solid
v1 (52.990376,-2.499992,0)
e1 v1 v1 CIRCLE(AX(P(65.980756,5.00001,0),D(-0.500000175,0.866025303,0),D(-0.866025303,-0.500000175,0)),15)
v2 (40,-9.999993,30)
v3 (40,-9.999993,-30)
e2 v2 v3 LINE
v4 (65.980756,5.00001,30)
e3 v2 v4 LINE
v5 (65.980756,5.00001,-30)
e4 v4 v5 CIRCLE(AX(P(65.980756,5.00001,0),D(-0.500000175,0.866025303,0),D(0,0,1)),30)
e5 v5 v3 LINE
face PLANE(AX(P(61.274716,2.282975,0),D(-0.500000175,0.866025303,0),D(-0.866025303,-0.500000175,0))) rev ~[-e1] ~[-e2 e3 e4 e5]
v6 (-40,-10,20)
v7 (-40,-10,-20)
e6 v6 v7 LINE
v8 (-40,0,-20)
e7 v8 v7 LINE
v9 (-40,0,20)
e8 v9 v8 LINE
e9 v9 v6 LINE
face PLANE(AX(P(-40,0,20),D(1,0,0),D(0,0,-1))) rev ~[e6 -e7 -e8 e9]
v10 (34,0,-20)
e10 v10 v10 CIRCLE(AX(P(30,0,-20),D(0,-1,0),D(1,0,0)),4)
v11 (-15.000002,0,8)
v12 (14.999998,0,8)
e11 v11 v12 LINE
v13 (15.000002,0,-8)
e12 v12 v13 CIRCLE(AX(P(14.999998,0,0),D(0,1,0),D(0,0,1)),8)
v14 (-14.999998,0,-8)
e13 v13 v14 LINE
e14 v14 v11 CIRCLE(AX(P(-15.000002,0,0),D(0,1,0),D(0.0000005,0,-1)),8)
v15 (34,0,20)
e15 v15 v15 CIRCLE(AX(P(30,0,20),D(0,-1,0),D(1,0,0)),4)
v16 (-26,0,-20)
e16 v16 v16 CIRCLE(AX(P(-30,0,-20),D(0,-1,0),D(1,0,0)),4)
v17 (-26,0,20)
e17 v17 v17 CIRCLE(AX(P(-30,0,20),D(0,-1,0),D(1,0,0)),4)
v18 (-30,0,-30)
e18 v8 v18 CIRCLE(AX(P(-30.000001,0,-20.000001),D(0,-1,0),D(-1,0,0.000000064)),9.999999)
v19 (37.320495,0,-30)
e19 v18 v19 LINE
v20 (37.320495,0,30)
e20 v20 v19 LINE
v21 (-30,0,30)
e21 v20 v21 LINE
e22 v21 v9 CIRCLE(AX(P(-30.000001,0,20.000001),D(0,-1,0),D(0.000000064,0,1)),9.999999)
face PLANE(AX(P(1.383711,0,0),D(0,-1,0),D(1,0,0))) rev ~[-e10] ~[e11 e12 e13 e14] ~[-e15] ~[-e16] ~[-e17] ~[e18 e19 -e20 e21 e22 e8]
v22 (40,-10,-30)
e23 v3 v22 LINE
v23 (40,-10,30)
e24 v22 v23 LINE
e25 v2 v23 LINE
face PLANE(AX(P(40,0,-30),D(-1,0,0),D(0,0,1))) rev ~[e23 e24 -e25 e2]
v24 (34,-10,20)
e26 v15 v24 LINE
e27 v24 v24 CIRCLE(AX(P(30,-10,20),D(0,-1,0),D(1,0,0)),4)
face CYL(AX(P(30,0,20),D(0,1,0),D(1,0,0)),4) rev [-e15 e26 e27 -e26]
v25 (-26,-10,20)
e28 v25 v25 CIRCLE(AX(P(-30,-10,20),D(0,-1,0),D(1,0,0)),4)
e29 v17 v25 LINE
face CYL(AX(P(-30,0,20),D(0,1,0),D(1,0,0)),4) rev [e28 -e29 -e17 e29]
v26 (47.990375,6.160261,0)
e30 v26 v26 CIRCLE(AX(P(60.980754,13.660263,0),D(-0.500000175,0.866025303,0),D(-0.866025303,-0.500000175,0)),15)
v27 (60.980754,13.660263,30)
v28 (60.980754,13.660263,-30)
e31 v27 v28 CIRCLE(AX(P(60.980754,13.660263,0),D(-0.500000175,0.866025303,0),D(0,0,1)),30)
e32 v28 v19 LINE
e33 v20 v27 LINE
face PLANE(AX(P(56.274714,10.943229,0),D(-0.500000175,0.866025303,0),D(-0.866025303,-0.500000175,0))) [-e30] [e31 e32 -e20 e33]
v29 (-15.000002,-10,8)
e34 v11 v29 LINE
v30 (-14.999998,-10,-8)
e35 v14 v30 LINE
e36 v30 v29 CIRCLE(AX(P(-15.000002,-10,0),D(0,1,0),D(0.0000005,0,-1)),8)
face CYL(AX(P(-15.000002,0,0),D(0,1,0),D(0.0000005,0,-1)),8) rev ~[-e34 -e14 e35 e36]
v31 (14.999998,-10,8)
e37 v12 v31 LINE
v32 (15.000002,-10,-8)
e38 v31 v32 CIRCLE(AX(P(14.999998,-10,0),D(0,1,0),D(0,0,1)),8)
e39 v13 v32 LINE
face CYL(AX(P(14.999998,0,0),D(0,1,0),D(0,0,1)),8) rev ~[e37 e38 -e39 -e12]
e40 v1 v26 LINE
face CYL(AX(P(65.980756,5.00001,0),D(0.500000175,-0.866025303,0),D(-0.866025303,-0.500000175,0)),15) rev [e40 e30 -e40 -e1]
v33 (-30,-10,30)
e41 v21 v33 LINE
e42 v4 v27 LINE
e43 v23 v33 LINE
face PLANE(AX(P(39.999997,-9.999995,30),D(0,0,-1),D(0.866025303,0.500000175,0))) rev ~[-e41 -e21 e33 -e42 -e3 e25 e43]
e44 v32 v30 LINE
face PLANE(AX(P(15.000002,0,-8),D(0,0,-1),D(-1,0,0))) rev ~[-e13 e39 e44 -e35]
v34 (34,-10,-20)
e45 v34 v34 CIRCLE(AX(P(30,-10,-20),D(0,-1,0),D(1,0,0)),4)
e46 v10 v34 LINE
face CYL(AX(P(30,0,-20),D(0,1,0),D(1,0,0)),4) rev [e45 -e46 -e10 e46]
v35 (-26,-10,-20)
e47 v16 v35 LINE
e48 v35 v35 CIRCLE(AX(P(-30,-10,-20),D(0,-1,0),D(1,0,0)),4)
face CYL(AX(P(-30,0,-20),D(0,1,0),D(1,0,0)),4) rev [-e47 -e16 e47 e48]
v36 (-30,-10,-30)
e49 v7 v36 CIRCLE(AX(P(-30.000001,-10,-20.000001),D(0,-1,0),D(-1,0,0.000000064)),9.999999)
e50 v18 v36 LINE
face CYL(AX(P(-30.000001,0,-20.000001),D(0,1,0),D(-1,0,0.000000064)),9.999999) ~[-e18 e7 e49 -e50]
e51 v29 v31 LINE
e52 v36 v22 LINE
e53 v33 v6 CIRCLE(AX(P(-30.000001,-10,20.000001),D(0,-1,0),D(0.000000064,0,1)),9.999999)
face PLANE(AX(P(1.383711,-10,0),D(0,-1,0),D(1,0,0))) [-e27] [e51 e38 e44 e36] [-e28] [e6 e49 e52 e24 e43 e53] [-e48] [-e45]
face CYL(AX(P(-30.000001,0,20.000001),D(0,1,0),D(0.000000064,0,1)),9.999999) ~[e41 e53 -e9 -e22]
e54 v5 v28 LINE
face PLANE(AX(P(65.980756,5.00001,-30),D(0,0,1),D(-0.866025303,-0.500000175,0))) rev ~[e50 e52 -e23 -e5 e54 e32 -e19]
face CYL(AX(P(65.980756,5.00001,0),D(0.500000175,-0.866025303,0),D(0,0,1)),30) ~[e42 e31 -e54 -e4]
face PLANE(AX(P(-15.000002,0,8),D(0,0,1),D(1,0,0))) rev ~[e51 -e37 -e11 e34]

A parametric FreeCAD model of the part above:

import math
import FreeCAD as App
import Part
import Sketcher
from FreeCAD import Vector
Q = App.Units.Quantity

doc = App.newDocument("Part")
body = doc.addObject("PartDesign::Body", "Body")

sketch1 = body.newObject("Sketcher::SketchObject", "Sketch")
sketch1.AttachmentSupport = (doc.getObject("XZ_Plane"), [""])
sketch1.MapMode = "FlatFace"
sketch1.addGeometry(Part.LineSegment(Vector(40, 30, 0), Vector(-30, 30, 0)), False)
sketch1.addGeometry(Part.ArcOfCircle(Part.Circle(Vector(-30, 20, 0), Vector(0, 0, 1), 10), math.radians(90), math.radians(180)), False)
sketch1.addGeometry(Part.LineSegment(Vector(-40, 20, 0), Vector(-40, -20, 0)), False)
sketch1.addGeometry(Part.ArcOfCircle(Part.Circle(Vector(-30, -20, 0), Vector(0, 0, 1), 10), math.radians(180), math.radians(270)), False)
sketch1.addGeometry(Part.LineSegment(Vector(-30, -30, 0), Vector(40, -30, 0)), False)
sketch1.addGeometry(Part.LineSegment(Vector(40, -30, 0), Vector(40, 30, 0)), False)
sketch1.addGeometry(Part.Circle(Vector(-30, -20, 0), Vector(0, 0, 1), 4), False)
sketch1.addGeometry(Part.LineSegment(Vector(-15, 8, 0), Vector(15, 8, 0)), False)
sketch1.addGeometry(Part.ArcOfCircle(Part.Circle(Vector(15, 0, 0), Vector(0, 0, 1), 8), math.radians(-90), math.radians(90)), False)
sketch1.addGeometry(Part.LineSegment(Vector(15, -8, 0), Vector(-15, -8, 0)), False)
sketch1.addGeometry(Part.ArcOfCircle(Part.Circle(Vector(-15, 0, 0), Vector(0, 0, 1), 8), math.radians(90), math.radians(270)), False)
sketch1.addGeometry(Part.Circle(Vector(30, -20, 0), Vector(0, 0, 1), 4), False)
sketch1.addGeometry(Part.Circle(Vector(-30, 20, 0), Vector(0, 0, 1), 4), False)
sketch1.addGeometry(Part.Circle(Vector(30, 20, 0), Vector(0, 0, 1), 4), False)
sketch1.addConstraint(Sketcher.Constraint("Tangent", 0, 2, 1, 1))
sketch1.addConstraint(Sketcher.Constraint("Tangent", 1, 2, 2, 1))
sketch1.addConstraint(Sketcher.Constraint("Tangent", 2, 2, 3, 1))
sketch1.addConstraint(Sketcher.Constraint("Tangent", 3, 2, 4, 1))
sketch1.addConstraint(Sketcher.Constraint("Coincident", 4, 2, 5, 1))
sketch1.addConstraint(Sketcher.Constraint("Coincident", 5, 2, 0, 1))
sketch1.addConstraint(Sketcher.Constraint("Tangent", 7, 2, 8, 2))
sketch1.addConstraint(Sketcher.Constraint("Tangent", 8, 1, 9, 1))
sketch1.addConstraint(Sketcher.Constraint("Tangent", 9, 2, 10, 2))
sketch1.addConstraint(Sketcher.Constraint("Tangent", 10, 1, 7, 1))
sketch1.addConstraint(Sketcher.Constraint("Horizontal", 0))
sketch1.addConstraint(Sketcher.Constraint("Vertical", 2))
sketch1.addConstraint(Sketcher.Constraint("Horizontal", 4))
sketch1.addConstraint(Sketcher.Constraint("Vertical", 5))
sketch1.addConstraint(Sketcher.Constraint("Horizontal", 7))
sketch1.addConstraint(Sketcher.Constraint("Horizontal", 9))
sketch1.addConstraint(Sketcher.Constraint("Coincident", 6, 3, 3, 3))
sketch1.addConstraint(Sketcher.Constraint("Coincident", 12, 3, 1, 3))
sketch1.addConstraint(Sketcher.Constraint("Equal", 1, 3))
sketch1.addConstraint(Sketcher.Constraint("Equal", 6, 11))
sketch1.addConstraint(Sketcher.Constraint("Equal", 11, 12))
sketch1.addConstraint(Sketcher.Constraint("Equal", 12, 13))
sketch1.addConstraint(Sketcher.Constraint("Symmetric", 8, 3, 10, 3, -1, 1))
sketch1.addConstraint(Sketcher.Constraint("Symmetric", 1, 3, 11, 3, -1, 1))
sketch1.addConstraint(Sketcher.Constraint("Symmetric", 3, 3, 13, 3, -1, 1))
sketch1.addConstraint(Sketcher.Constraint("Horizontal", 6, 3, 11, 3))
sketch1.addConstraint(Sketcher.Constraint("Diameter", 6, Q("8 mm")))
sketch1.addConstraint(Sketcher.Constraint("Radius", 1, Q("9.999999 mm")))
sketch1.addConstraint(Sketcher.Constraint("Radius", 8, Q("8 mm")))
sketch1.addConstraint(Sketcher.Constraint("DistanceX", 0, 2, 0, 1, Q("70 mm")))
sketch1.addConstraint(Sketcher.Constraint("DistanceX", 7, 1, 7, 2, Q("30 mm")))
sketch1.addConstraint(Sketcher.Constraint("DistanceY", 2, 2, 2, 1, Q("40 mm")))
sketch1.addConstraint(Sketcher.Constraint("DistanceX", 1, 3, -1, 1, Q("30.000001 mm")))
pad1 = body.newObject("PartDesign::Pad", "Pad")
pad1.Profile = sketch1
pad1.Length = 10

sketch2 = body.newObject("Sketcher::SketchObject", "Sketch001")
sketch2.Placement = App.Placement(Vector(14.330127, -24.820508, 0), App.Rotation(Vector(-0.866025303, -0.500000175, 0), Vector(0, 0, 1), Vector(-0.500000175, 0.866025303, 0), "ZXY"))
sketch2.addGeometry(Part.LineSegment(Vector(-60, -30, 0), Vector(-30, -30, 0)), False)
sketch2.addGeometry(Part.LineSegment(Vector(-30, -30, 0), Vector(-30, 30, 0)), False)
sketch2.addGeometry(Part.LineSegment(Vector(-30, 30, 0), Vector(-60, 30, 0)), False)
sketch2.addGeometry(Part.ArcOfCircle(Part.Circle(Vector(-60, 0, 0), Vector(0, 0, 1), 30), math.radians(90), math.radians(270)), False)
sketch2.addGeometry(Part.Circle(Vector(-60, 0, 0), Vector(0, 0, 1), 15), False)
sketch2.addConstraint(Sketcher.Constraint("Coincident", 0, 2, 1, 1))
sketch2.addConstraint(Sketcher.Constraint("Coincident", 1, 2, 2, 1))
sketch2.addConstraint(Sketcher.Constraint("Tangent", 2, 2, 3, 1))
sketch2.addConstraint(Sketcher.Constraint("Tangent", 3, 2, 0, 1))
sketch2.addConstraint(Sketcher.Constraint("Horizontal", 0))
sketch2.addConstraint(Sketcher.Constraint("Vertical", 1))
sketch2.addConstraint(Sketcher.Constraint("Horizontal", 2))
sketch2.addConstraint(Sketcher.Constraint("Coincident", 4, 3, 3, 3))
sketch2.addConstraint(Sketcher.Constraint("PointOnObject", 3, 3, -1))
sketch2.addConstraint(Sketcher.Constraint("Diameter", 4, Q("30 mm")))
sketch2.addConstraint(Sketcher.Constraint("Radius", 3, Q("30 mm")))
sketch2.addConstraint(Sketcher.Constraint("DistanceX", 0, 1, 0, 2, Q("30 mm")))
sketch2.addConstraint(Sketcher.Constraint("DistanceX", 3, 3, -1, 1, Q("59.641016 mm")))
pad2 = body.newObject("PartDesign::Pad", "Pad001")
pad2.Profile = sketch2
pad2.Length = 10

doc.recompute()
